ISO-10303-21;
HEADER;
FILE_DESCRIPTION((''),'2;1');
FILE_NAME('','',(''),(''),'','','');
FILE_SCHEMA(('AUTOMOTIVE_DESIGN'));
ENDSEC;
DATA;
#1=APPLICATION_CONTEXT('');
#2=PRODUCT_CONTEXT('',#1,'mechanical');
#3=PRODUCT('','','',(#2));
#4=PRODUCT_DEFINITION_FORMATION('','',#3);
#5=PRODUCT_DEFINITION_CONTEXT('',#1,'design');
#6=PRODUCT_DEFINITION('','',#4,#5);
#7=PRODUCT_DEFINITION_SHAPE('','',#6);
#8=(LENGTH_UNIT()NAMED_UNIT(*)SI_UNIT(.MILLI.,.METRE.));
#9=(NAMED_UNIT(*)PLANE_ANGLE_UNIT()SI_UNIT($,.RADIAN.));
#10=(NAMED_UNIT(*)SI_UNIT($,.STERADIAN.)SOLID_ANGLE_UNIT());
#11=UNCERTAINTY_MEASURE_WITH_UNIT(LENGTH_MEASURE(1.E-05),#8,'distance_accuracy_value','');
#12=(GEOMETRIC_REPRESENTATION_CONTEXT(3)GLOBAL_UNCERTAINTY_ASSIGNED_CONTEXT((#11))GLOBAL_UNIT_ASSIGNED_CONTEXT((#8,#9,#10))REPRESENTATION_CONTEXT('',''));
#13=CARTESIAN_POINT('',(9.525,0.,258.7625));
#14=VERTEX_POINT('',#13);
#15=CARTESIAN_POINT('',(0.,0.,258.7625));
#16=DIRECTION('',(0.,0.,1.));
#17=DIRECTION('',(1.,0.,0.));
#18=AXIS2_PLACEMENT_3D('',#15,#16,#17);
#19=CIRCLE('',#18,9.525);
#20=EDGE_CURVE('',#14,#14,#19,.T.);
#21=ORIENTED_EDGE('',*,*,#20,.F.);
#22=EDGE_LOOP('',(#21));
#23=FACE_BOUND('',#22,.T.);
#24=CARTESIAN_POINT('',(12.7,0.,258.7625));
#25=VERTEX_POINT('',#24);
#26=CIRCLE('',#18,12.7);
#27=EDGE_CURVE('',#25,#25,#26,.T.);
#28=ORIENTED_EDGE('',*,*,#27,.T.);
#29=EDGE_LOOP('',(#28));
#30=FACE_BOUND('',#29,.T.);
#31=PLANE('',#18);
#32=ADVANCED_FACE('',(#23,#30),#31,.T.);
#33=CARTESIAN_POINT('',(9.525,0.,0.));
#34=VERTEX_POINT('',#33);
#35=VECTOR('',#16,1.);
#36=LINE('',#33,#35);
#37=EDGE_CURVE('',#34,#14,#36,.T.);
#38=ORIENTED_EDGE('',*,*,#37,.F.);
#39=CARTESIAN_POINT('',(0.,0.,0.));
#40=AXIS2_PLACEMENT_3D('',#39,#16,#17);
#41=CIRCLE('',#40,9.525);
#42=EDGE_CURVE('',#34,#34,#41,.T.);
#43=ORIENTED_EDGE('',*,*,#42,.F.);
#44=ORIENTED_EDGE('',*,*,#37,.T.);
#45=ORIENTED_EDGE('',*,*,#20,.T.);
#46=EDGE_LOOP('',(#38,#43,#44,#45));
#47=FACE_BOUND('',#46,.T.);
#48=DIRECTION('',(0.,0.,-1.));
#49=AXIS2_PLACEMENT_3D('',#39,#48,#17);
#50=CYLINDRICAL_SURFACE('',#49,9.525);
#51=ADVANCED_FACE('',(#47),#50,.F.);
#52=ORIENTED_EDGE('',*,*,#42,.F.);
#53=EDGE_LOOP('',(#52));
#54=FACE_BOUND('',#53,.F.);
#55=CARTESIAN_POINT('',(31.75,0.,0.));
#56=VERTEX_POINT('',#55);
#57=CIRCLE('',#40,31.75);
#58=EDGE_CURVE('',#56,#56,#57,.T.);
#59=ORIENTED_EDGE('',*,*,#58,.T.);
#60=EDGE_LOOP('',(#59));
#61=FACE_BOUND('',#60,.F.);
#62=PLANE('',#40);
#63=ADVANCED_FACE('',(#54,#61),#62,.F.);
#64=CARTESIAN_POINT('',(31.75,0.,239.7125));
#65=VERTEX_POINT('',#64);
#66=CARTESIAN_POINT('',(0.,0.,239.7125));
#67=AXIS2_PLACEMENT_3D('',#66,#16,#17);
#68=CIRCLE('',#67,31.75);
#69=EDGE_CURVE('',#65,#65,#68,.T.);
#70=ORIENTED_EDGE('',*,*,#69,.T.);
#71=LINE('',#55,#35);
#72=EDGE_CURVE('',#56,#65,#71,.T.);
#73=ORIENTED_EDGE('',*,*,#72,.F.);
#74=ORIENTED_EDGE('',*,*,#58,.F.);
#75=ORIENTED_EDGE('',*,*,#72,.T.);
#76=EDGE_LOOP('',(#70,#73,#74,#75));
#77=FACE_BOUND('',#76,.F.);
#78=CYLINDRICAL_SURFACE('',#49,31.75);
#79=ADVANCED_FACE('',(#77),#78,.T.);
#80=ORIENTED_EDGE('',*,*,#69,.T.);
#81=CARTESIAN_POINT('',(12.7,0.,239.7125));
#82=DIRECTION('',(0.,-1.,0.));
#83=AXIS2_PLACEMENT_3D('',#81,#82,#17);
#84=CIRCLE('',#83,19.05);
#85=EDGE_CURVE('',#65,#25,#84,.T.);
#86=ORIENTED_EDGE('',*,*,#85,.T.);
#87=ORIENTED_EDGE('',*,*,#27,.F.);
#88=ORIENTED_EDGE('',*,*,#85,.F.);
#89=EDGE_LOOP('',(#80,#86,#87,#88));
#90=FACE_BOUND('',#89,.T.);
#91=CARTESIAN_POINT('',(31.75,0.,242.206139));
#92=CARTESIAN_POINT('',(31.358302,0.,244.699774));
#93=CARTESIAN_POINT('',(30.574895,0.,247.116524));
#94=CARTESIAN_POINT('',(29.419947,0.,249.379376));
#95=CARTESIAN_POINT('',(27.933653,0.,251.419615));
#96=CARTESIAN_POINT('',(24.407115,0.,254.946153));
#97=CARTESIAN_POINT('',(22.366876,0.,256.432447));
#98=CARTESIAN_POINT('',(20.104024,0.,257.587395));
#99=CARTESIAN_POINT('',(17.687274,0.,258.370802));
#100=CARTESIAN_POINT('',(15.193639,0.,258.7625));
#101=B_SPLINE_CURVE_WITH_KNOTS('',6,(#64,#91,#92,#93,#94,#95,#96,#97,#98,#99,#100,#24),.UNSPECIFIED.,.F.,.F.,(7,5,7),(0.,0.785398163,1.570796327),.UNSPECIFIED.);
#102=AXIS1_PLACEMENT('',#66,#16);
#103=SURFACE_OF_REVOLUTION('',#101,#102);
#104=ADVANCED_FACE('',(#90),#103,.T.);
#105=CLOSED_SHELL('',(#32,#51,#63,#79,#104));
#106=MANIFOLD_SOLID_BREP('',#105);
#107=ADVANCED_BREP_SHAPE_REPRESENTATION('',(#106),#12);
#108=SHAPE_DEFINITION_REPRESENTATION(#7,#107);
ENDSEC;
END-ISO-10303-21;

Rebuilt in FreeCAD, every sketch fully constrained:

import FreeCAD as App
import Part
import Sketcher
from FreeCAD import Vector
Q = App.Units.Quantity


def edges_at(feature, points):
    """Names of the edges that pass closest to the given points."""
    edges = feature.Shape.Edges
    near = lambda p: min(range(len(edges)), key=lambda i: edges[i].distToShape(Part.Vertex(*p))[0])
    return sorted({f"Edge{near(p) + 1}" for p in points})

doc = App.newDocument("Part")
body = doc.addObject("PartDesign::Body", "Body")

sketch1 = doc.addObject("Sketcher::SketchObject", "Sketch")
body.addObject(sketch1)
sketch1.AttachmentSupport = (doc.XY_Plane, [""])
sketch1.MapMode = "FlatFace"
sketch1.addGeometry(Part.Circle(Vector(0, 0, 0), Vector(0, 0, 1), 32), False)
sketch1.addGeometry(Part.Circle(Vector(0, 0, 0), Vector(0, 0, 1), 10), False)
sketch1.addConstraint(Sketcher.Constraint("Coincident", 0, 3, -1, 1))
sketch1.addConstraint(Sketcher.Constraint("Coincident", 1, 3, -1, 1))
sketch1.addConstraint(Sketcher.Constraint("Diameter", 0, Q("2.5 in")))
sketch1.addConstraint(Sketcher.Constraint("Diameter", 1, Q("0.75 in")))
pad1 = doc.addObject("PartDesign::Pad", "Pad")
body.addObject(pad1)
pad1.Profile = sketch1
pad1.Length = Q("10.1875 in")
doc.recompute()

fillet = doc.addObject("PartDesign::Fillet", "Fillet")
body.addObject(fillet)
fillet.Base = (pad1, edges_at(pad1, [(-31.75, 0, 258.762)]))
fillet.Radius = Q("0.75 in")

doc.recompute()
